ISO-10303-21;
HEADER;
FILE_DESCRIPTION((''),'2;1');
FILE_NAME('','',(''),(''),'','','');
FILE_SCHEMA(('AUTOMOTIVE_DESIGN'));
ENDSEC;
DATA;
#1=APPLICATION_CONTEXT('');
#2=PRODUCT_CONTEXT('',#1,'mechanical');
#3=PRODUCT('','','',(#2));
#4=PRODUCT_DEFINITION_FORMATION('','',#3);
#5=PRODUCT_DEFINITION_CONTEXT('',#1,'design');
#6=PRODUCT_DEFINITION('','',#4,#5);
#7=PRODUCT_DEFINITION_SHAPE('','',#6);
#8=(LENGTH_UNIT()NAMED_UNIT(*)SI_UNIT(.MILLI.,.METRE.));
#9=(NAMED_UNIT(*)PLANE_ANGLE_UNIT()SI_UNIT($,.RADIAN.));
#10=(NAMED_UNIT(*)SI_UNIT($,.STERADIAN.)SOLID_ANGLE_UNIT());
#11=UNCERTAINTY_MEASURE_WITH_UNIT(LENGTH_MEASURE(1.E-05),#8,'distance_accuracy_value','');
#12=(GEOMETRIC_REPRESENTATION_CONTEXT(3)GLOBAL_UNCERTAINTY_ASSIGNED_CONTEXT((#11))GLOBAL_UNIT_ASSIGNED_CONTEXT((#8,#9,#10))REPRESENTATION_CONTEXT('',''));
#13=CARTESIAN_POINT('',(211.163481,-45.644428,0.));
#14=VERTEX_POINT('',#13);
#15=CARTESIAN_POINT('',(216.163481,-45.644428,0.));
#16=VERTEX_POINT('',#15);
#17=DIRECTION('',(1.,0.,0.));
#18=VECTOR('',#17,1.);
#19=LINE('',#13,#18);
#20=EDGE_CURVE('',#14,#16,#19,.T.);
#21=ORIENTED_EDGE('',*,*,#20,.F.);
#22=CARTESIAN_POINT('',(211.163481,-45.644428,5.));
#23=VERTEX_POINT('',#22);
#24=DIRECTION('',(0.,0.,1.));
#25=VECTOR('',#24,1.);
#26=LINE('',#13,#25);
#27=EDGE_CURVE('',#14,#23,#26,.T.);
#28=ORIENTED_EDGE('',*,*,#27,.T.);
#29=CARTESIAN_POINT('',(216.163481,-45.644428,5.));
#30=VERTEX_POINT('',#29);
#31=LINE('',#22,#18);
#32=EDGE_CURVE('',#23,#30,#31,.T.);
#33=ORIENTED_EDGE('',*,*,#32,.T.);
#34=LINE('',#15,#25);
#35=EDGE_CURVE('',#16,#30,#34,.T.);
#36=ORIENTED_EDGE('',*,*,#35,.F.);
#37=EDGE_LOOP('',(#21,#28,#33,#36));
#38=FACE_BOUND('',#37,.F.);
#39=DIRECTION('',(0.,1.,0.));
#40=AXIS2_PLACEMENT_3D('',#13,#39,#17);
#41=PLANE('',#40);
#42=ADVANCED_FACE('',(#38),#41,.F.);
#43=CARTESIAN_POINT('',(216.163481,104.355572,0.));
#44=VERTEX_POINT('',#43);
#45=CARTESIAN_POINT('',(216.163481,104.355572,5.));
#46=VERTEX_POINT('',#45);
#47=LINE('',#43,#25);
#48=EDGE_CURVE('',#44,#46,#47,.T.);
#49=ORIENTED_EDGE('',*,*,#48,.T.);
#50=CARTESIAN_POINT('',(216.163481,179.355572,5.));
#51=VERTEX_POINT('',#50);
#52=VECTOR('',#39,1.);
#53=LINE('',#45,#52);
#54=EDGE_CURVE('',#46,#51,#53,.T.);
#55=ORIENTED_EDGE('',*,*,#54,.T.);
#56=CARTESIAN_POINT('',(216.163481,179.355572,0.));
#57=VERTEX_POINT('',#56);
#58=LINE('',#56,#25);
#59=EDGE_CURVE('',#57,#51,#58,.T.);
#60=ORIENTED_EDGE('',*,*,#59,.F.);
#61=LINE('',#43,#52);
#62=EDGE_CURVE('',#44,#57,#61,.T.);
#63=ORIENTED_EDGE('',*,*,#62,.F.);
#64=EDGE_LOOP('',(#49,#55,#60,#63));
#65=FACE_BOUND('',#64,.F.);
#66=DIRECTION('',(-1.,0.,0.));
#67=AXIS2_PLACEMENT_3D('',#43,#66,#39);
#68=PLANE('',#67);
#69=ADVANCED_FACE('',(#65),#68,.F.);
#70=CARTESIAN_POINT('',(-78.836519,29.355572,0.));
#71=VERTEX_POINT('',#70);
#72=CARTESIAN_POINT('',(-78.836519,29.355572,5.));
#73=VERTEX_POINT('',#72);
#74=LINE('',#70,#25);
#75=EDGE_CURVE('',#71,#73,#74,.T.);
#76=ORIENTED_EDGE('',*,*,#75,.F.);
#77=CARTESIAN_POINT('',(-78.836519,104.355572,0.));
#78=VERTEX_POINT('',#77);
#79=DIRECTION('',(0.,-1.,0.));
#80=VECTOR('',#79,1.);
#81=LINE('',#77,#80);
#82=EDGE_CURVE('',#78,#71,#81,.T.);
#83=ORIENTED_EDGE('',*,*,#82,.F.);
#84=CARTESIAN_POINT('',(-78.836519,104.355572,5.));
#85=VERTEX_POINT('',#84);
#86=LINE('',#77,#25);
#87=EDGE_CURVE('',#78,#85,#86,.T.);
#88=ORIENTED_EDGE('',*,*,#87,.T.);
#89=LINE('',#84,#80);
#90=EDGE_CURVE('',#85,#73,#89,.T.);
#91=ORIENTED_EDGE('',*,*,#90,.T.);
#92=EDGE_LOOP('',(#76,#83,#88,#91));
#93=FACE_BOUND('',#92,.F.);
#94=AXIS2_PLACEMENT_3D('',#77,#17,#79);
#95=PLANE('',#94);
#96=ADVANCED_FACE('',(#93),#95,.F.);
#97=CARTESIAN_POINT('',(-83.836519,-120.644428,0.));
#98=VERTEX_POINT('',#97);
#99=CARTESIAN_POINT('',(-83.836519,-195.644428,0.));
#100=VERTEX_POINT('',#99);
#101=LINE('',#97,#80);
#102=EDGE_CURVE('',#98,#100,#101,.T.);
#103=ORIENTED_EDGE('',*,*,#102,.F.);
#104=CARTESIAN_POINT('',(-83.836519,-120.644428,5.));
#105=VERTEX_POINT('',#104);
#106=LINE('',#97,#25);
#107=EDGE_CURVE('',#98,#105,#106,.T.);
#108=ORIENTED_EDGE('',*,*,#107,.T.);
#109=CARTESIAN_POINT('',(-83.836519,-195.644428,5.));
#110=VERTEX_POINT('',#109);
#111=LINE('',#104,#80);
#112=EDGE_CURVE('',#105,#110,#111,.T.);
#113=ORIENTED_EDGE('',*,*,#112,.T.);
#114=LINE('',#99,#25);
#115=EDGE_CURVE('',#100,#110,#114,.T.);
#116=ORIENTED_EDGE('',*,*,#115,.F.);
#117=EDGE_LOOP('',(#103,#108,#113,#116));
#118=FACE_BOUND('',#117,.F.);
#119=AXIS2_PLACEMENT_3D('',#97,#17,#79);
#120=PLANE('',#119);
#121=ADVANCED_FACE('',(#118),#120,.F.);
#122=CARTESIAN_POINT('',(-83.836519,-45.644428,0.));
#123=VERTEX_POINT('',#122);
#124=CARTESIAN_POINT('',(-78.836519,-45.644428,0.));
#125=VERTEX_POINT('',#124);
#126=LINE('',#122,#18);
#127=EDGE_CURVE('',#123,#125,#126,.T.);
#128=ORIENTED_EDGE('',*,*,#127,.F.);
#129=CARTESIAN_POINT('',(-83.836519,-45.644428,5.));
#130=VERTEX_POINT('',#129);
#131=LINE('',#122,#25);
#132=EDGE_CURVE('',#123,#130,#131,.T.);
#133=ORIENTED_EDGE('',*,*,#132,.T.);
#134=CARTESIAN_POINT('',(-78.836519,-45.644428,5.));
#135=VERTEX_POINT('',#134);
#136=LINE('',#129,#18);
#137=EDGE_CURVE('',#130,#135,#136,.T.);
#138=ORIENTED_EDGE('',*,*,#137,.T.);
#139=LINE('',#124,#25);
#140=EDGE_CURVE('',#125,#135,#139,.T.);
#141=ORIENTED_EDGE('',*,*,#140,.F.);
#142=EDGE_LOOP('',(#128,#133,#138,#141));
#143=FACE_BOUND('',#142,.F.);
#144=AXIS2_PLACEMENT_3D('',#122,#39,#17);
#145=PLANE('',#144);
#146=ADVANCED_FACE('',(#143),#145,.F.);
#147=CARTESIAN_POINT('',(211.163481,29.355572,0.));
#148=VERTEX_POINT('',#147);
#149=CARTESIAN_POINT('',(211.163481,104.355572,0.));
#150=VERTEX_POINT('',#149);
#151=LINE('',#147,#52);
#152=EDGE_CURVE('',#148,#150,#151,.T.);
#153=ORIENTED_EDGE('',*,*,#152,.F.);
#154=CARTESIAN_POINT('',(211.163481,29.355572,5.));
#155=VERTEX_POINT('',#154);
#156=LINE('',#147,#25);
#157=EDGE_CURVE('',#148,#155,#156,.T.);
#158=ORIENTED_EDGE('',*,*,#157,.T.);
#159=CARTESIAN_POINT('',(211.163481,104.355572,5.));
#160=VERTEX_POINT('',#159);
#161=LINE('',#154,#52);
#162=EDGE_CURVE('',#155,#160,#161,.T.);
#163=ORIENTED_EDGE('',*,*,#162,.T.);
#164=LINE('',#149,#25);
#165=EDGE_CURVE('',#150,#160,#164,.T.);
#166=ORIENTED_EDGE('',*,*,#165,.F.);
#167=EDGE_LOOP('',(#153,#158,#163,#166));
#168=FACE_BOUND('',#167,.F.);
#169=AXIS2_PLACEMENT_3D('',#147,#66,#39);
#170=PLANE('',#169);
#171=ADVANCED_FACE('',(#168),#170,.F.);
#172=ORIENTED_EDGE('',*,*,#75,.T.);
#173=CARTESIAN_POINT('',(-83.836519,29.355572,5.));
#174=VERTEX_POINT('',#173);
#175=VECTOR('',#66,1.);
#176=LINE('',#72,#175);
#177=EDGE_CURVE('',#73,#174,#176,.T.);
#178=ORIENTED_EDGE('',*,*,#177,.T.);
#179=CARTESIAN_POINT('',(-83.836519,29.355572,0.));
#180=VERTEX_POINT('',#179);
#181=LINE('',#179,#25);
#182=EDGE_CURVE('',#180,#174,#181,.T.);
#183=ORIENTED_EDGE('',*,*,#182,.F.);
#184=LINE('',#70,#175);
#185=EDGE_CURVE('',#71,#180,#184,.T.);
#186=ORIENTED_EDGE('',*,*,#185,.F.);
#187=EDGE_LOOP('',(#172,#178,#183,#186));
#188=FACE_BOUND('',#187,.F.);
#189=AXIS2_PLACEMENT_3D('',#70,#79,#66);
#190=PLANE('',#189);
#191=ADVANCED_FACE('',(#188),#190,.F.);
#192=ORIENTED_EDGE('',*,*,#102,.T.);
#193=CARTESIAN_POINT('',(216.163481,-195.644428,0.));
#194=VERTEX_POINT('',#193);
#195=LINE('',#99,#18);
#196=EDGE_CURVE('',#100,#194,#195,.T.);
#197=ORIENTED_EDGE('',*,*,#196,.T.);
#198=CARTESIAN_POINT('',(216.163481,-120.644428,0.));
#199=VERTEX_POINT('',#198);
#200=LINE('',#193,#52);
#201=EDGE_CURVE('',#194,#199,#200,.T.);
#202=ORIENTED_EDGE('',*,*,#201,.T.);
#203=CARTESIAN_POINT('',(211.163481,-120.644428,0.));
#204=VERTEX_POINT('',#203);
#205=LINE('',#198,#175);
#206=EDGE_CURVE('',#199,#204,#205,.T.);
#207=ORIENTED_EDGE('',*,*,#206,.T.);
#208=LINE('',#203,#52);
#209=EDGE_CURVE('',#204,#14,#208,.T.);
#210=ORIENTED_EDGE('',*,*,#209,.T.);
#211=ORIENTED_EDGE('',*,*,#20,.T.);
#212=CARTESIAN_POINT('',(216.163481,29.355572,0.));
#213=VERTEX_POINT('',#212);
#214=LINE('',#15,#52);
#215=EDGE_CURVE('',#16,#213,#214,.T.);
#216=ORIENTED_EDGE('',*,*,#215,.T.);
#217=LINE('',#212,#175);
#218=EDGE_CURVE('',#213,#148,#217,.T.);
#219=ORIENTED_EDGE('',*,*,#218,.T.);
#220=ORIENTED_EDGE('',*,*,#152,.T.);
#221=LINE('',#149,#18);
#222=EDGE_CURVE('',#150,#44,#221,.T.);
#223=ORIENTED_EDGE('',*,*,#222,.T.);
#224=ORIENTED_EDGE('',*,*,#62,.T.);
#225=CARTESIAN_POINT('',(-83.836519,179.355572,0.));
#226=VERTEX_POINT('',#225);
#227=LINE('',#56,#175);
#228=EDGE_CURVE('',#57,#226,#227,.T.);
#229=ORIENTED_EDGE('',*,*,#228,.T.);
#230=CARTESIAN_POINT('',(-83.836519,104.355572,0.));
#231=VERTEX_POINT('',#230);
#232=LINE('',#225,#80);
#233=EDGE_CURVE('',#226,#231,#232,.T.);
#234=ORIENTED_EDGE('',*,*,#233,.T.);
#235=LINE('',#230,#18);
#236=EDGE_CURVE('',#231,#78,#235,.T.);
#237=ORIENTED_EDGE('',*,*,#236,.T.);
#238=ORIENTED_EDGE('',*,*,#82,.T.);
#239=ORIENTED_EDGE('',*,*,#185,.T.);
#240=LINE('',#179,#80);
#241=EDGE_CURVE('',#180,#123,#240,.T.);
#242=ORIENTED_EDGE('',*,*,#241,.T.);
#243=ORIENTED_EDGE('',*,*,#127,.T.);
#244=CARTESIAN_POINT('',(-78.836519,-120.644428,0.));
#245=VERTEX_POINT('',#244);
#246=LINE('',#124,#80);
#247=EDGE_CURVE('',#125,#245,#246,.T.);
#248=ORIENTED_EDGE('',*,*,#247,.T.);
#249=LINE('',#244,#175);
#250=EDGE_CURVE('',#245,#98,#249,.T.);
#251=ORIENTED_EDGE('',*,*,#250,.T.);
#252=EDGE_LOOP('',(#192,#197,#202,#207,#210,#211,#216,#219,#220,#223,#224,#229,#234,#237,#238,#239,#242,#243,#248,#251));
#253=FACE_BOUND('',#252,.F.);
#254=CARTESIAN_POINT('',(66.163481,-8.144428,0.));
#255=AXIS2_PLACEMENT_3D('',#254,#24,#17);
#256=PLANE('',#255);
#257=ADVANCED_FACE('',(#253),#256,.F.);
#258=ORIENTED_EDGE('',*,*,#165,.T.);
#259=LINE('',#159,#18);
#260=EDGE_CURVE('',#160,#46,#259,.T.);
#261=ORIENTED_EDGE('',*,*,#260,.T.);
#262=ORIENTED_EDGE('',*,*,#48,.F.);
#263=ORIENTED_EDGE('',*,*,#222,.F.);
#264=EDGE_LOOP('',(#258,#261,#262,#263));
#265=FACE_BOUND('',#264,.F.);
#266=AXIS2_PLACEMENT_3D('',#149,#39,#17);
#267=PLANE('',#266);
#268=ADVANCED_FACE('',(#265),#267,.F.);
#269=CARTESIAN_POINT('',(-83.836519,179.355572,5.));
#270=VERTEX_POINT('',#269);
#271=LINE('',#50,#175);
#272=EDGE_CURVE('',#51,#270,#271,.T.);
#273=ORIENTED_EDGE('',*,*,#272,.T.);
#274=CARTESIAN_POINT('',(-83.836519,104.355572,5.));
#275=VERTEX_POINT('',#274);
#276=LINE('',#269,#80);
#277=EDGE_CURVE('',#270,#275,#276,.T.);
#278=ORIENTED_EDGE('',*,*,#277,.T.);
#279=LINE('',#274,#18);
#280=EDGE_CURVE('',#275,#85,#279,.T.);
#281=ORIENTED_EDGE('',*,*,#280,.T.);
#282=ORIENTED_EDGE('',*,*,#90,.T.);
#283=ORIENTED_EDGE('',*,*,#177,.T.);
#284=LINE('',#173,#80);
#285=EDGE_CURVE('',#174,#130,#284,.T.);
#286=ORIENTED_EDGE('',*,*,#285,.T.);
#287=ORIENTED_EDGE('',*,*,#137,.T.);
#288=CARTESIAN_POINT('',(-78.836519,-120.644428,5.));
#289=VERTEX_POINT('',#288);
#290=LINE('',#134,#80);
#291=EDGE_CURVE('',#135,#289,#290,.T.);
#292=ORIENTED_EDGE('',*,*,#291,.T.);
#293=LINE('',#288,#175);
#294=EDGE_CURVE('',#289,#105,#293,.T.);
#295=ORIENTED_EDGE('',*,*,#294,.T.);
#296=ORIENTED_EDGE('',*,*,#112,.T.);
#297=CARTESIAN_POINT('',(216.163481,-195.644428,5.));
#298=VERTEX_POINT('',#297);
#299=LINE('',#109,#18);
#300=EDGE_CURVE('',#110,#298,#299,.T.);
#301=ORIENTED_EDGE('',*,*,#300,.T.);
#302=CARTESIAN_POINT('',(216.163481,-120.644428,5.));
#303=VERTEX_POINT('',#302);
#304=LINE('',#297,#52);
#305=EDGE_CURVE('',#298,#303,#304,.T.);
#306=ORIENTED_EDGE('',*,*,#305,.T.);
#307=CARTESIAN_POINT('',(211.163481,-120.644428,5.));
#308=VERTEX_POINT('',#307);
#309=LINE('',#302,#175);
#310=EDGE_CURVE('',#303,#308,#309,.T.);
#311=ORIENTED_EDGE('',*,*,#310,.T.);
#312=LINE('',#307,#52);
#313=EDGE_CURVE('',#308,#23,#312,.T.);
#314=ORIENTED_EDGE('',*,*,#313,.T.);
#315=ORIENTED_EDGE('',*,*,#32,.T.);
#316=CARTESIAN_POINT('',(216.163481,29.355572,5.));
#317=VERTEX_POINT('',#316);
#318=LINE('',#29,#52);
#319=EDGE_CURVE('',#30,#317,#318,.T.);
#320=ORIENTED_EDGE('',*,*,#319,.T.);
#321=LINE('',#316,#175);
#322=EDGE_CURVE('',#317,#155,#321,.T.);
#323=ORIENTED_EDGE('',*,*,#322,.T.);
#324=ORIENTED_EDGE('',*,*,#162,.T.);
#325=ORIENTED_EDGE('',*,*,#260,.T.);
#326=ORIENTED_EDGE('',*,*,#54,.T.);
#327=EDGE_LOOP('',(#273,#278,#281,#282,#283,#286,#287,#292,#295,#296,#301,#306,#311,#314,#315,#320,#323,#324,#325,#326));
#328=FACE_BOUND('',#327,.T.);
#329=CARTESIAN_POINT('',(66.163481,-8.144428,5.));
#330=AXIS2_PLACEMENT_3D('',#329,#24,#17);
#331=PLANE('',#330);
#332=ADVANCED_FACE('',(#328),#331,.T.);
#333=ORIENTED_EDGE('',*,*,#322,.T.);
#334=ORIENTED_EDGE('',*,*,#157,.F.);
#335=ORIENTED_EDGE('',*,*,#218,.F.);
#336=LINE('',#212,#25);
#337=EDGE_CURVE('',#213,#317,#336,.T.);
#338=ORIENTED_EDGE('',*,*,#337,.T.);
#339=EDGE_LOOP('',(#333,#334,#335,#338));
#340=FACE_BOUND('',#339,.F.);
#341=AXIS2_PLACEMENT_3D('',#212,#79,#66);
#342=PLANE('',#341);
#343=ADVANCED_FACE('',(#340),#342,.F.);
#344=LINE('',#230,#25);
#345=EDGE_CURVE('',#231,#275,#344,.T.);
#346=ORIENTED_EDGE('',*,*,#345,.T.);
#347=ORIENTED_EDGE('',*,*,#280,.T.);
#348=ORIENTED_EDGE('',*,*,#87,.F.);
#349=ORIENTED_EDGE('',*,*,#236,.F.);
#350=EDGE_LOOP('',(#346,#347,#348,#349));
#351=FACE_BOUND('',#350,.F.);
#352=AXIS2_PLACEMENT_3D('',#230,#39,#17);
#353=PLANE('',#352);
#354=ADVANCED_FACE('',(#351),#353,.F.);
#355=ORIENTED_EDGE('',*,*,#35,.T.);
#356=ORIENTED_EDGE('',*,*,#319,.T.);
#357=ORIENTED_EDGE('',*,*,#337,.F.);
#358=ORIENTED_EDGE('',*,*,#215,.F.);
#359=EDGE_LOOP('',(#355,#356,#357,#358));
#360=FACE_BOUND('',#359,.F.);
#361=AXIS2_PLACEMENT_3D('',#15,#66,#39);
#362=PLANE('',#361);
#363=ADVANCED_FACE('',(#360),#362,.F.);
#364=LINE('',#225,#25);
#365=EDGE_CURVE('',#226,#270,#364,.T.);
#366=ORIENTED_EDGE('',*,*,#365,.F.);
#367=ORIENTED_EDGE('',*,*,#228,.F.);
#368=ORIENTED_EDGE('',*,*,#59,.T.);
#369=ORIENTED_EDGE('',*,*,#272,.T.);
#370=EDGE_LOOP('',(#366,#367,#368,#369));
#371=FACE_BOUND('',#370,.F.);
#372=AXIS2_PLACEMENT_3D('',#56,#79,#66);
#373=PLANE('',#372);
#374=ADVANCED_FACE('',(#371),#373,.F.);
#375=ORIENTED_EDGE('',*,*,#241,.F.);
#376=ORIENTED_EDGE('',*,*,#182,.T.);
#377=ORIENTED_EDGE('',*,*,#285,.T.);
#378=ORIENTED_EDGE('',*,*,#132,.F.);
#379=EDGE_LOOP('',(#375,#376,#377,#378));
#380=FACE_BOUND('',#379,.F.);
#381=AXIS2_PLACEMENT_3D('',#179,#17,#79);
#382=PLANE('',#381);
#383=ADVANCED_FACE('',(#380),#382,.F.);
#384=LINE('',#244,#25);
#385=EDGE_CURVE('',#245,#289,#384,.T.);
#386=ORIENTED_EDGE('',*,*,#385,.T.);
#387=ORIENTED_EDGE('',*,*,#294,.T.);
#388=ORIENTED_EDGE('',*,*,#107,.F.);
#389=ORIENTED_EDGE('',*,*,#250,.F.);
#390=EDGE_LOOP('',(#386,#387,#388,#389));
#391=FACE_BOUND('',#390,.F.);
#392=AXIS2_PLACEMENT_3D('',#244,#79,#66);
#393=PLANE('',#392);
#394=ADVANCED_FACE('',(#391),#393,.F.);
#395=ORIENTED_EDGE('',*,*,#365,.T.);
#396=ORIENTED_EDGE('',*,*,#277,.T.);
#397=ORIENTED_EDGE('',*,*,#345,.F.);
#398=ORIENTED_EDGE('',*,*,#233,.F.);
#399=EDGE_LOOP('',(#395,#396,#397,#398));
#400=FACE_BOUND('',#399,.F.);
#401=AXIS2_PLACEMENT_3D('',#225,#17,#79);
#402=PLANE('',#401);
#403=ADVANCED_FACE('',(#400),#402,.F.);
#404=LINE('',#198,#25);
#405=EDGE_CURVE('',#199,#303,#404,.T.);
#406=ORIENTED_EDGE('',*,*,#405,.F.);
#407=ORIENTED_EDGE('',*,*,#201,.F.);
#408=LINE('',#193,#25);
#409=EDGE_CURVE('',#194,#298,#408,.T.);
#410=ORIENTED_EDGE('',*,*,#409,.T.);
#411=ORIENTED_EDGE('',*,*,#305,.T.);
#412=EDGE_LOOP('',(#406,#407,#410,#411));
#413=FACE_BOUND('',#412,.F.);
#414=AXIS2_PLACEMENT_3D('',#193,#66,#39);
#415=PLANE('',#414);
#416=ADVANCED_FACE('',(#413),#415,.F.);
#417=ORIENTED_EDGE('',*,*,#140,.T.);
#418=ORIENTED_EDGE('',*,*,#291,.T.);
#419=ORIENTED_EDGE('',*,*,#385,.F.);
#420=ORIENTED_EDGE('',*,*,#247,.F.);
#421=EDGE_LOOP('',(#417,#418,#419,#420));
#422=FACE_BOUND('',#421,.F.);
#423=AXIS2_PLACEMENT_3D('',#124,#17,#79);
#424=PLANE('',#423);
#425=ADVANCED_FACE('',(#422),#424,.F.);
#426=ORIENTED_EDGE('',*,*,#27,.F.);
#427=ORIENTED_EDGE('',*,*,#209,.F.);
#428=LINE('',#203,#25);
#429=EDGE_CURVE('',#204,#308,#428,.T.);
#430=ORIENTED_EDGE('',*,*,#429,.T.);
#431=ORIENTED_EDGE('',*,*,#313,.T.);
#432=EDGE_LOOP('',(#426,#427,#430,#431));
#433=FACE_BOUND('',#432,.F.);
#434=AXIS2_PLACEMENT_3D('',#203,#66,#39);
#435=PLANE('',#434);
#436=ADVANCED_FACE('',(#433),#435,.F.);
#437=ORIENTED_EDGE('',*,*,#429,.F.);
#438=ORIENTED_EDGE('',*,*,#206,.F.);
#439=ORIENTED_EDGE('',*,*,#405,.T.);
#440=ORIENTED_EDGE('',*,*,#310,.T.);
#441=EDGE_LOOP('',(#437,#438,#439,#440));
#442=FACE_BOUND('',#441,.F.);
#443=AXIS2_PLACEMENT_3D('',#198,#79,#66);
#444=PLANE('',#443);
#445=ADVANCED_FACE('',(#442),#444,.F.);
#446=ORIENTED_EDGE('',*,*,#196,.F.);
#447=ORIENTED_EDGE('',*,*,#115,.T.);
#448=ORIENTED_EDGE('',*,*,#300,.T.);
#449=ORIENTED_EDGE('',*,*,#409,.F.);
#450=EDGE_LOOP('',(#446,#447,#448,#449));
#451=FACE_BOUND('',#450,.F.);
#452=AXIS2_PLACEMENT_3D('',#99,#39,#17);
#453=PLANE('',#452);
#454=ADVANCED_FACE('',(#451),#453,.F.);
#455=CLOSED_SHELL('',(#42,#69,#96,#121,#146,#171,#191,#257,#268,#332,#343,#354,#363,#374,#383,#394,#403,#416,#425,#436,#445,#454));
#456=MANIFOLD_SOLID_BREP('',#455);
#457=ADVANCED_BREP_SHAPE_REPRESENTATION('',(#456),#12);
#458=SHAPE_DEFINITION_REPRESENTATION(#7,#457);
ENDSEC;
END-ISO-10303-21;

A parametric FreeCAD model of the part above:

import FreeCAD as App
import Part
import Sketcher

V = App.Vector


def add_polygon(sketch, points):
    """Adds a closed chain of lines whose ends are joined by coincident constraints."""
    first, n = sketch.GeometryCount, len(points)
    for a, b in zip(points, points[1:] + points[:1]):
        sketch.addGeometry(Part.LineSegment(App.Vector(*a, 0), App.Vector(*b, 0)), False)
    for i in range(n):
        sketch.addConstraint(Sketcher.Constraint("Coincident", first + i, 2, first + (i + 1) % n, 1))

doc = App.newDocument("Part")
body = doc.addObject("PartDesign::Body", "Body")

sketch1 = body.newObject("Sketcher::SketchObject", "Sketch")
sketch1.AttachmentSupport = (doc.getObject("XY_Plane"), [""])
sketch1.MapMode = "FlatFace"
add_polygon(sketch1, [(-84, 179), (-84, 104), (-79, 104), (-79, 29), (-84, 29), (-84, -46), (-79, -46), (-79, -121), (-84, -121), (-84, -196), (216, -196), (216, -121), (211, -121), (211, -46), (216, -46), (216, 29), (211, 29), (211, 104), (216, 104), (216, 179)])
sketch1.addConstraint([
    Sketcher.Constraint("Vertical", 0),
    Sketcher.Constraint("Horizontal", 1),
    Sketcher.Constraint("Vertical", 2),
    Sketcher.Constraint("Horizontal", 3),
    Sketcher.Constraint("Vertical", 4),
    Sketcher.Constraint("Horizontal", 5),
    Sketcher.Constraint("Vertical", 6),
    Sketcher.Constraint("Horizontal", 7),
    Sketcher.Constraint("Vertical", 8),
    Sketcher.Constraint("Horizontal", 9),
    Sketcher.Constraint("Vertical", 10),
    Sketcher.Constraint("Horizontal", 11),
    Sketcher.Constraint("Vertical", 12),
    Sketcher.Constraint("Horizontal", 13),
    Sketcher.Constraint("Vertical", 14),
    Sketcher.Constraint("Horizontal", 15),
    Sketcher.Constraint("Vertical", 16),
    Sketcher.Constraint("Horizontal", 17),
    Sketcher.Constraint("Vertical", 18),
    Sketcher.Constraint("Horizontal", 19),
    Sketcher.Constraint("Horizontal", 7, 2, 10, 2),
    Sketcher.Constraint("Horizontal", 5, 2, 12, 2),
    Sketcher.Constraint("Horizontal", 3, 2, 14, 2),
    Sketcher.Constraint("Horizontal", 1, 2, 16, 2),
    Sketcher.Constraint("Vertical", 0, 2, 3, 2),
    Sketcher.Constraint("Vertical", 2, 2, 5, 2),
    Sketcher.Constraint("Vertical", 4, 2, 7, 2),
    Sketcher.Constraint("Vertical", 10, 2, 13, 2),
    Sketcher.Constraint("Vertical", 12, 2, 15, 2),
    Sketcher.Constraint("Vertical", 14, 2, 17, 2),
    Sketcher.Constraint("Equal", 7, 11),
    Sketcher.Constraint("Equal", 0, 2),
    Sketcher.Constraint("Equal", 2, 4),
    Sketcher.Constraint("Equal", 4, 6),
    Sketcher.Constraint("Equal", 6, 8),
    Sketcher.Constraint("DistanceX", 1, 1, 1, 2, 5.0),
    Sketcher.Constraint("DistanceX", 9, 1, 9, 2, 300.0),
    Sketcher.Constraint("DistanceY", 0, 2, 0, 1, 75.0),
    Sketcher.Constraint("DistanceX", 0, 2, -1, 1, 83.836519),
    Sketcher.Constraint("DistanceY", -1, 1, 0, 2, 104.355572),
])
pad1 = body.newObject("PartDesign::Pad", "Pad")
pad1.Profile = sketch1
pad1.Length = 5

doc.recompute()
